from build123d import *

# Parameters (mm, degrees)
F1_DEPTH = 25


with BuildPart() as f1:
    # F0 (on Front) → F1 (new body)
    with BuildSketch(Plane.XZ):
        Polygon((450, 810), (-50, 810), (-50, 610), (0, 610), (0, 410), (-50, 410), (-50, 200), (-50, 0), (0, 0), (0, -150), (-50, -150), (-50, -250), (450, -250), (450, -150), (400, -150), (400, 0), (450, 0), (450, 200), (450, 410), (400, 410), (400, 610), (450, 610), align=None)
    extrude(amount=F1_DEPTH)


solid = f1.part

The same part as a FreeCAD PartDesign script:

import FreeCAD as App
import Part
import Sketcher
Q = App.Units.Quantity

doc = App.newDocument("Part")
params = doc.addObject("Spreadsheet::Sheet", "Params")
for row, (alias, value) in enumerate([
    ("sketch1_width", "500 mm"),
    ("sketch1_width2", "50 mm"),
    ("sketch1_height", "200 mm"),
    ("sketch1_height2", "410 mm"),
    ("sketch1_height3", "150 mm"),
    ("pad1_length", "25 mm"),
], start=1):
    params.set(f"A{row}", alias)
    params.set(f"B{row}", "=" + value)
    params.setAlias(f"B{row}", alias)

body = doc.addObject("PartDesign::Body", "Body")

# Sketch on XZ plane
sketch1 = doc.addObject("Sketcher::SketchObject", "Sketch")
body.addObject(sketch1)
sketch1.AttachmentSupport = (doc.XZ_Plane, [""])
sketch1.MapMode = "FlatFace"
sketch1.addGeometry(Part.LineSegment(App.Vector(450, 810, 0), App.Vector(-50, 810, 0)), False)
sketch1.addGeometry(Part.LineSegment(App.Vector(-50, 810, 0), App.Vector(-50, 610, 0)), False)
sketch1.addGeometry(Part.LineSegment(App.Vector(-50, 610, 0), App.Vector(0, 610, 0)), False)
sketch1.addGeometry(Part.LineSegment(App.Vector(0, 610, 0), App.Vector(0, 410, 0)), False)
sketch1.addGeometry(Part.LineSegment(App.Vector(0, 410, 0), App.Vector(-50, 410, 0)), False)
sketch1.addGeometry(Part.LineSegment(App.Vector(-50, 410, 0), App.Vector(-50, 0, 0)), False)
sketch1.addGeometry(Part.LineSegment(App.Vector(-50, 0, 0), App.Vector(0, 0, 0)), False)
sketch1.addGeometry(Part.LineSegment(App.Vector(0, 0, 0), App.Vector(0, -150, 0)), False)
sketch1.addGeometry(Part.LineSegment(App.Vector(0, -150, 0), App.Vector(-50, -150, 0)), False)
sketch1.addGeometry(Part.LineSegment(App.Vector(-50, -150, 0), App.Vector(-50, -250, 0)), False)
sketch1.addGeometry(Part.LineSegment(App.Vector(-50, -250, 0), App.Vector(450, -250, 0)), False)
sketch1.addGeometry(Part.LineSegment(App.Vector(450, -250, 0), App.Vector(450, -150, 0)), False)
sketch1.addGeometry(Part.LineSegment(App.Vector(450, -150, 0), App.Vector(400, -150, 0)), False)
sketch1.addGeometry(Part.LineSegment(App.Vector(400, -150, 0), App.Vector(400, 0, 0)), False)
sketch1.addGeometry(Part.LineSegment(App.Vector(400, 0, 0), App.Vector(450, 0, 0)), False)
sketch1.addGeometry(Part.LineSegment(App.Vector(450, 0, 0), App.Vector(450, 410, 0)), False)
sketch1.addGeometry(Part.LineSegment(App.Vector(450, 410, 0), App.Vector(400, 410, 0)), False)
sketch1.addGeometry(Part.LineSegment(App.Vector(400, 410, 0), App.Vector(400, 610, 0)), False)
sketch1.addGeometry(Part.LineSegment(App.Vector(400, 610, 0), App.Vector(450, 610, 0)), False)
sketch1.addGeometry(Part.LineSegment(App.Vector(450, 610, 0), App.Vector(450, 810, 0)), False)
sketch1.addConstraint(Sketcher.Constraint("Coincident", 0, 2, 1, 1))
sketch1.addConstraint(Sketcher.Constraint("Coincident", 1, 2, 2, 1))
sketch1.addConstraint(Sketcher.Constraint("Coincident", 2, 2, 3, 1))
sketch1.addConstraint(Sketcher.Constraint("Coincident", 3, 2, 4, 1))
sketch1.addConstraint(Sketcher.Constraint("Coincident", 4, 2, 5, 1))
sketch1.addConstraint(Sketcher.Constraint("Coincident", 5, 2, 6, 1))
sketch1.addConstraint(Sketcher.Constraint("Coincident", 6, 2, 7, 1))
sketch1.addConstraint(Sketcher.Constraint("Coincident", 7, 2, 8, 1))
sketch1.addConstraint(Sketcher.Constraint("Coincident", 8, 2, 9, 1))
sketch1.addConstraint(Sketcher.Constraint("Coincident", 9, 2, 10, 1))
sketch1.addConstraint(Sketcher.Constraint("Coincident", 10, 2, 11, 1))
sketch1.addConstraint(Sketcher.Constraint("Coincident", 11, 2, 12, 1))
sketch1.addConstraint(Sketcher.Constraint("Coincident", 12, 2, 13, 1))
sketch1.addConstraint(Sketcher.Constraint("Coincident", 13, 2, 14, 1))
sketch1.addConstraint(Sketcher.Constraint("Coincident", 14, 2, 15, 1))
sketch1.addConstraint(Sketcher.Constraint("Coincident", 15, 2, 16, 1))
sketch1.addConstraint(Sketcher.Constraint("Coincident", 16, 2, 17, 1))
sketch1.addConstraint(Sketcher.Constraint("Coincident", 17, 2, 18, 1))
sketch1.addConstraint(Sketcher.Constraint("Coincident", 18, 2, 19, 1))
sketch1.addConstraint(Sketcher.Constraint("Coincident", 19, 2, 0, 1))
sketch1.addConstraint(Sketcher.Constraint("Horizontal", 0))
sketch1.addConstraint(Sketcher.Constraint("Vertical", 1))
sketch1.addConstraint(Sketcher.Constraint("Horizontal", 2))
sketch1.addConstraint(Sketcher.Constraint("Vertical", 3))
sketch1.addConstraint(Sketcher.Constraint("Horizontal", 4))
sketch1.addConstraint(Sketcher.Constraint("Vertical", 5))
sketch1.addConstraint(Sketcher.Constraint("Horizontal", 6))
sketch1.addConstraint(Sketcher.Constraint("Vertical", 7))
sketch1.addConstraint(Sketcher.Constraint("Horizontal", 8))
sketch1.addConstraint(Sketcher.Constraint("Vertical", 9))
sketch1.addConstraint(Sketcher.Constraint("Horizontal", 10))
sketch1.addConstraint(Sketcher.Constraint("Vertical", 11))
sketch1.addConstraint(Sketcher.Constraint("Horizontal", 12))
sketch1.addConstraint(Sketcher.Constraint("Vertical", 13))
sketch1.addConstraint(Sketcher.Constraint("Horizontal", 14))
sketch1.addConstraint(Sketcher.Constraint("Vertical", 15))
sketch1.addConstraint(Sketcher.Constraint("Horizontal", 16))
sketch1.addConstraint(Sketcher.Constraint("Vertical", 17))
sketch1.addConstraint(Sketcher.Constraint("Horizontal", 18))
sketch1.addConstraint(Sketcher.Constraint("Vertical", 19))
sketch1.addConstraint(Sketcher.Constraint("Coincident", 6, 2, -1, 1))
sketch1.addConstraint(Sketcher.Constraint("PointOnObject", 2, 2, -2))
sketch1.addConstraint(Sketcher.Constraint("PointOnObject", 13, 2, -1))
sketch1.addConstraint(Sketcher.Constraint("Horizontal", 8, 2, 11, 2))
sketch1.addConstraint(Sketcher.Constraint("Horizontal", 4, 2, 15, 2))
sketch1.addConstraint(Sketcher.Constraint("Horizontal", 2, 2, 17, 2))
sketch1.addConstraint(Sketcher.Constraint("Vertical", 1, 2, 4, 2))
sketch1.addConstraint(Sketcher.Constraint("Vertical", 5, 2, 8, 2))
sketch1.addConstraint(Sketcher.Constraint("Vertical", 11, 2, 14, 2))
sketch1.addConstraint(Sketcher.Constraint("Vertical", 13, 2, 16, 2))
sketch1.addConstraint(Sketcher.Constraint("Vertical", 15, 2, 18, 2))
sketch1.addConstraint(Sketcher.Constraint("Equal", 8, 12))
sketch1.addConstraint(Sketcher.Constraint("Equal", 1, 3))
sketch1.addConstraint(Sketcher.Constraint("DistanceX", 0, 2, 0, 1, Q("500 mm")))
sketch1.addConstraint(Sketcher.Constraint("DistanceX", 2, 1, 2, 2, Q("50 mm")))
sketch1.addConstraint(Sketcher.Constraint("DistanceY", 1, 2, 1, 1, Q("200 mm")))
sketch1.addConstraint(Sketcher.Constraint("DistanceY", 5, 2, 5, 1, Q("410 mm")))
sketch1.addConstraint(Sketcher.Constraint("DistanceY", 7, 2, 7, 1, Q("150 mm")))
sketch1.addConstraint(Sketcher.Constraint("DistanceY", 9, 2, 9, 1, Q("100 mm")))
sketch1.setExpression("Constraints[53]", "Params.sketch1_width")
sketch1.setExpression("Constraints[54]", "Params.sketch1_width2")
sketch1.setExpression("Constraints[55]", "Params.sketch1_height")
sketch1.setExpression("Constraints[56]", "Params.sketch1_height2")
sketch1.setExpression("Constraints[57]", "Params.sketch1_height3")
pad1 = doc.addObject("PartDesign::Pad", "Pad")
body.addObject(pad1)
pad1.Profile = sketch1
pad1.setExpression("Length", "Params.pad1_length")

doc.recompute()
